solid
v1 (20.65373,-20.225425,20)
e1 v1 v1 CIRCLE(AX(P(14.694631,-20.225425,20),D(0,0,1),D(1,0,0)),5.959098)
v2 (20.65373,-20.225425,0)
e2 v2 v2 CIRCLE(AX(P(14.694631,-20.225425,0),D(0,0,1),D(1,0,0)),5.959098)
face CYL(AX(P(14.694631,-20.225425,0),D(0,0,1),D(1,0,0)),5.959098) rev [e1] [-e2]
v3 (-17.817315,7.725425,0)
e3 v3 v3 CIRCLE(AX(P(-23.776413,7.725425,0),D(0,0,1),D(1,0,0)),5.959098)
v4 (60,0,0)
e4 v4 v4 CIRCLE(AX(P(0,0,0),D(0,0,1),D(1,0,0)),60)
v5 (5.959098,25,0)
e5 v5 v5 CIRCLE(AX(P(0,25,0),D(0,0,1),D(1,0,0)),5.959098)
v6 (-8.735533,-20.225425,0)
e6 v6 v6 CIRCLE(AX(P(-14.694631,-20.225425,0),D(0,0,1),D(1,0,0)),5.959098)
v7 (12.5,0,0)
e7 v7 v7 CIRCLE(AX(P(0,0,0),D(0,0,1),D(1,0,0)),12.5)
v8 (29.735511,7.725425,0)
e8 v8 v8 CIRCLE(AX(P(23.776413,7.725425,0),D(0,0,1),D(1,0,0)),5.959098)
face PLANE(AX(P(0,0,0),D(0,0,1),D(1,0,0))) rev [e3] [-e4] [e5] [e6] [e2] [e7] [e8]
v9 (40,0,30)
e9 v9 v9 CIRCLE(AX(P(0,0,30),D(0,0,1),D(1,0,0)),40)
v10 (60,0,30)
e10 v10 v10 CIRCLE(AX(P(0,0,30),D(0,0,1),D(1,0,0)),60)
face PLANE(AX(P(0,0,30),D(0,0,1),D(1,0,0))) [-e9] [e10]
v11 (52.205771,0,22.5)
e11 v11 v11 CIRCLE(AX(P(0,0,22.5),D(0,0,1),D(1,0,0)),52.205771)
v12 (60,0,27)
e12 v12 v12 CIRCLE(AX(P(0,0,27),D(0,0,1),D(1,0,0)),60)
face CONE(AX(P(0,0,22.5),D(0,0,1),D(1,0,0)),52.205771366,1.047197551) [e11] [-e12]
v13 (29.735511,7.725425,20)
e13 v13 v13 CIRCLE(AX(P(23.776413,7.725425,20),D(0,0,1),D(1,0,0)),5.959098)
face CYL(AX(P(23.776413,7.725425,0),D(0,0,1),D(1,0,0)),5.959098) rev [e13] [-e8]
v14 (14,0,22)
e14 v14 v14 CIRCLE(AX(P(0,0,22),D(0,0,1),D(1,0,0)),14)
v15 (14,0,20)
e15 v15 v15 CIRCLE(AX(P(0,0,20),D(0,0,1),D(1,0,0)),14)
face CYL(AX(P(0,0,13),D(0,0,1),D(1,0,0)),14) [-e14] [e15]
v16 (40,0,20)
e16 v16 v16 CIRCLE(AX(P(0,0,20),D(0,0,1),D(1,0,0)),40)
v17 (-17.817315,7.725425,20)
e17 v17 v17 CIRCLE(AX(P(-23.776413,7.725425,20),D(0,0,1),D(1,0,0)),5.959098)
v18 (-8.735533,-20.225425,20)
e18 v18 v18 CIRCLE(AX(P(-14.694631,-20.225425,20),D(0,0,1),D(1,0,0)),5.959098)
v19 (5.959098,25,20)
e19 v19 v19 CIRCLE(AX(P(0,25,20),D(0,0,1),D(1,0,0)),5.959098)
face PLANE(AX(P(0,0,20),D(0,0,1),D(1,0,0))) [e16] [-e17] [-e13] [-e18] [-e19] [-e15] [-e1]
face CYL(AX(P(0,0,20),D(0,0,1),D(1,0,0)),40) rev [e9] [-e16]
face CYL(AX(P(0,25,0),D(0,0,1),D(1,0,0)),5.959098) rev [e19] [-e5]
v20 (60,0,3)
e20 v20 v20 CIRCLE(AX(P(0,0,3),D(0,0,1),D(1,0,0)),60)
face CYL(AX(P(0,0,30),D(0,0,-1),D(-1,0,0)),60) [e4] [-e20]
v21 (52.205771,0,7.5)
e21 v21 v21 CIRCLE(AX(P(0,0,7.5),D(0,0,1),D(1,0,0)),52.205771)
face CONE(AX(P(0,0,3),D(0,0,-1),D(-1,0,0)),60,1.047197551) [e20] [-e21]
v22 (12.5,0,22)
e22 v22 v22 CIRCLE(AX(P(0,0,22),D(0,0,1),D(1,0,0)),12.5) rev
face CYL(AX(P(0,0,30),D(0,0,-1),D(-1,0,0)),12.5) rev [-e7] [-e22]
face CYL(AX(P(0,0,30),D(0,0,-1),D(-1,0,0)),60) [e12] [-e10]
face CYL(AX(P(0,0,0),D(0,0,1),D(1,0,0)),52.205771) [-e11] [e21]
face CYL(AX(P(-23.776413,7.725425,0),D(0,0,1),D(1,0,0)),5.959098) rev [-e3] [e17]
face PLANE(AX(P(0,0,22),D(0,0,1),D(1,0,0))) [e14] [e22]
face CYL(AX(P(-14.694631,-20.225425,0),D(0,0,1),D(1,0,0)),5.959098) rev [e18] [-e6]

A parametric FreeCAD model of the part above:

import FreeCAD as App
import Part
import Sketcher
from FreeCAD import Vector
Q = App.Units.Quantity

doc = App.newDocument("Part")
body = doc.addObject("PartDesign::Body", "Body")

# Sketch on XY plane
sketch1 = doc.addObject("Sketcher::SketchObject", "Sketch")
body.addObject(sketch1)
sketch1.AttachmentSupport = (doc.XY_Plane, [""])
sketch1.MapMode = "FlatFace"
sketch1.addGeometry(Part.Circle(Vector(0, 0, 0), Vector(0, 0, 1), 60), False)
sketch1.addGeometry(Part.Circle(Vector(0, 0, 0), Vector(0, 0, 1), 12), False)
sketch1.addConstraint(Sketcher.Constraint("Coincident", 0, 3, -1, 1))
sketch1.addConstraint(Sketcher.Constraint("Coincident", 1, 3, -1, 1))
sketch1.addConstraint(Sketcher.Constraint("Diameter", 0, Q("120 mm")))
sketch1.addConstraint(Sketcher.Constraint("Diameter", 1, Q("25 mm")))
pad1 = doc.addObject("PartDesign::Pad", "Pad")
body.addObject(pad1)
pad1.Profile = sketch1
pad1.Length = 30

# Sketch on XY plane
sketch2 = doc.addObject("Sketcher::SketchObject", "Sketch001")
body.addObject(sketch2)
sketch2.AttachmentSupport = (doc.XY_Plane, [""])
sketch2.MapMode = "FlatFace"
sketch2.AttachmentOffset = App.Placement(Vector(0, 0, 30), App.Rotation())
sketch2.addGeometry(Part.Circle(Vector(0, 0, 0), Vector(0, 0, 1), 40), False)
sketch2.addConstraint(Sketcher.Constraint("Coincident", 0, 3, -1, 1))
sketch2.addConstraint(Sketcher.Constraint("Diameter", 0, Q("80 mm")))
pocket1 = doc.addObject("PartDesign::Pocket", "Pocket")
body.addObject(pocket1)
pocket1.Profile = sketch2
pocket1.Length = 10
doc.recompute()

mirrored = doc.addObject("PartDesign::Mirrored", "Mirrored")
body.addObject(mirrored)
mirrored.Originals = [pocket1]
mirrored.MirrorPlane = (doc.XY_Plane, [""])
body.Tip = mirrored

# Sketch on XY plane
sketch3 = doc.addObject("Sketcher::SketchObject", "Sketch002")
body.addObject(sketch3)
sketch3.AttachmentSupport = (doc.XY_Plane, [""])
sketch3.MapMode = "FlatFace"
sketch3.AttachmentOffset = App.Placement(Vector(0, 0, 20), App.Rotation())
sketch3.addGeometry(Part.Circle(Vector(0, 25, 0), Vector(0, 0, 1), 6), False)
sketch3.addGeometry(Part.Circle(Vector(24, 8, 0), Vector(0, 0, 1), 6), False)
sketch3.addGeometry(Part.Circle(Vector(15, -20, 0), Vector(0, 0, 1), 6), False)
sketch3.addGeometry(Part.Circle(Vector(-15, -20, 0), Vector(0, 0, 1), 6), False)
sketch3.addGeometry(Part.Circle(Vector(-24, 8, 0), Vector(0, 0, 1), 6), False)
sketch3.addConstraint(Sketcher.Constraint("Equal", 0, 1))
sketch3.addConstraint(Sketcher.Constraint("Equal", 1, 2))
sketch3.addConstraint(Sketcher.Constraint("Equal", 2, 3))
sketch3.addConstraint(Sketcher.Constraint("Equal", 3, 4))
sketch3.addConstraint(Sketcher.Constraint("Symmetric", 2, 3, 3, 3, -2))
sketch3.addConstraint(Sketcher.Constraint("Symmetric", 1, 3, 4, 3, -2))
sketch3.addConstraint(Sketcher.Constraint("PointOnObject", 0, 3, -2))
sketch3.addConstraint(Sketcher.Constraint("DistanceY", -1, 1, 0, 3, Q("25 mm")))
sketch3.addConstraint(Sketcher.Constraint("Diameter", 0, Q("11.918197 mm")))
sketch3.addConstraint(Sketcher.Constraint("DistanceX", -1, 1, 2, 3, Q("14.694631 mm")))
sketch3.addConstraint(Sketcher.Constraint("DistanceX", 2, 3, 1, 3, Q("9.081782 mm")))
sketch3.addConstraint(Sketcher.Constraint("DistanceY", 2, 3, 1, 3, Q("27.95085 mm")))
sketch3.addConstraint(Sketcher.Constraint("DistanceY", -1, 1, 1, 3, Q("7.725425 mm")))
pocket2 = doc.addObject("PartDesign::Pocket", "Pocket001")
body.addObject(pocket2)
pocket2.Profile = sketch3
pocket2.Type = "ThroughAll"

# Sketch on XZ plane
sketch4 = doc.addObject("Sketcher::SketchObject", "Sketch003")
body.addObject(sketch4)
sketch4.AttachmentSupport = (doc.XZ_Plane, [""])
sketch4.MapMode = "FlatFace"
sketch4.addGeometry(Part.LineSegment(Vector(60, 3, 0), Vector(52, 8, 0)), False)
sketch4.addGeometry(Part.LineSegment(Vector(52, 8, 0), Vector(52, 22, 0)), False)
sketch4.addGeometry(Part.LineSegment(Vector(52, 22, 0), Vector(60, 27, 0)), False)
sketch4.addGeometry(Part.LineSegment(Vector(60, 27, 0), Vector(60, 3, 0)), False)
sketch4.addConstraint(Sketcher.Constraint("Coincident", 0, 2, 1, 1))
sketch4.addConstraint(Sketcher.Constraint("Coincident", 1, 2, 2, 1))
sketch4.addConstraint(Sketcher.Constraint("Coincident", 2, 2, 3, 1))
sketch4.addConstraint(Sketcher.Constraint("Coincident", 3, 2, 0, 1))
sketch4.addConstraint(Sketcher.Constraint("Vertical", 1))
sketch4.addConstraint(Sketcher.Constraint("Vertical", 3))
sketch4.addConstraint(Sketcher.Constraint("Equal", 0, 2))
sketch4.addConstraint(Sketcher.Constraint("DistanceY", 1, 1, 1, 2, Q("15 mm")))
sketch4.addConstraint(Sketcher.Constraint("DistanceY", 3, 2, 3, 1, Q("24 mm")))
sketch4.addConstraint(Sketcher.Constraint("Angle", 0, Q("150 deg")))
sketch4.addConstraint(Sketcher.Constraint("DistanceX", -1, 1, 2, 2, Q("60 mm")))
sketch4.addConstraint(Sketcher.Constraint("DistanceY", -1, 1, 2, 2, Q("27 mm")))
groove = doc.addObject("PartDesign::Groove", "Groove")
body.addObject(groove)
groove.Profile = sketch4
groove.ReferenceAxis = (sketch4, ["V_Axis"])
groove.Angle = 360

# Sketch on XY plane
sketch5 = doc.addObject("Sketcher::SketchObject", "Sketch004")
body.addObject(sketch5)
sketch5.AttachmentSupport = (doc.XY_Plane, [""])
sketch5.MapMode = "FlatFace"
sketch5.AttachmentOffset = App.Placement(Vector(0, 0, 20), App.Rotation())
sketch5.addGeometry(Part.Circle(Vector(0, 0, 0), Vector(0, 0, 1), 14), False)
sketch5.addGeometry(Part.Circle(Vector(0, 0, 0), Vector(0, 0, 1), 12), False)
sketch5.addConstraint(Sketcher.Constraint("Coincident", 0, 3, -1, 1))
sketch5.addConstraint(Sketcher.Constraint("Coincident", 1, 3, -1, 1))
sketch5.addConstraint(Sketcher.Constraint("Diameter", 0, Q("28 mm")))
sketch5.addConstraint(Sketcher.Constraint("Diameter", 1, Q("25 mm")))
pad2 = doc.addObject("PartDesign::Pad", "Pad001")
body.addObject(pad2)
pad2.Profile = sketch5
pad2.Type = "TwoLengths"
pad2.Length = 2
pad2.Length2 = 7

doc.recompute()
